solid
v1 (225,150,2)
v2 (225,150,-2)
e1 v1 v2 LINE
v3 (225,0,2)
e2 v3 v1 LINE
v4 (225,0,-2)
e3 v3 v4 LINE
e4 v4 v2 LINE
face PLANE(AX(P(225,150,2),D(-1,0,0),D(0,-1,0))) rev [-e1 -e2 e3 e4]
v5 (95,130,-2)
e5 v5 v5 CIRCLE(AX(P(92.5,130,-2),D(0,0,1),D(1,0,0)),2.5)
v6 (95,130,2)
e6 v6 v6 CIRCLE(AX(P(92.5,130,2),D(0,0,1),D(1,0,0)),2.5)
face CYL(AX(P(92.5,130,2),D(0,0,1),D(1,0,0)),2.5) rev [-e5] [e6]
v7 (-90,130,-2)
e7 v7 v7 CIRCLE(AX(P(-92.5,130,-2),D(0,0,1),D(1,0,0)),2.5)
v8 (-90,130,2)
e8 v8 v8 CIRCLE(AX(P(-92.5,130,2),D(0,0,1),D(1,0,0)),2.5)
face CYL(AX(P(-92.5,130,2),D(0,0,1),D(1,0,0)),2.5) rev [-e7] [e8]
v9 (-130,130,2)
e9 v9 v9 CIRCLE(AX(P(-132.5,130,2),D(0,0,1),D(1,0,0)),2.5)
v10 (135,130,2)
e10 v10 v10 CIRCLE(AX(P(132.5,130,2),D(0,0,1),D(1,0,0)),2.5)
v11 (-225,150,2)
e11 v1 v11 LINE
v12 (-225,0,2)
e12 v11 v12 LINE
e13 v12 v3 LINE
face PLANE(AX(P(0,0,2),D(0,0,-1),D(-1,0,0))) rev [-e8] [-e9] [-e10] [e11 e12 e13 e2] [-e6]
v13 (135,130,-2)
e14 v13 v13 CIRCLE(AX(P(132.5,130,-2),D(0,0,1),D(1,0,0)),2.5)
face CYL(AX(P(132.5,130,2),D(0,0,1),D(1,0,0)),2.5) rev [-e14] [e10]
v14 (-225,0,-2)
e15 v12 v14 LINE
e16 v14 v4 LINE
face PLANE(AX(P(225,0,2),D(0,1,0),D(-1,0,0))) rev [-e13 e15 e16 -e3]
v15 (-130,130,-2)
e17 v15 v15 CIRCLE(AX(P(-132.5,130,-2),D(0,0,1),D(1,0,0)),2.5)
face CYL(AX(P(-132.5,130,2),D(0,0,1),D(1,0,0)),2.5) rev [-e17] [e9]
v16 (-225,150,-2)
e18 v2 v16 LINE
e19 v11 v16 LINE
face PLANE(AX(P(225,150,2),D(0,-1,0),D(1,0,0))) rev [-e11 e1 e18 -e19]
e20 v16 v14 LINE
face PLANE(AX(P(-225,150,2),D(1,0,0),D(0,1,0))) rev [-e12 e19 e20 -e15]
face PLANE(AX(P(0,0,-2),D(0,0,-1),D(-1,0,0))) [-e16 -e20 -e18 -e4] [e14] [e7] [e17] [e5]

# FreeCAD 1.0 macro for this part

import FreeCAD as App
import Part
import Sketcher


def add_polygon(sketch, points):
    """Adds a closed chain of lines whose ends are joined by coincident constraints."""
    first, n = sketch.GeometryCount, len(points)
    for a, b in zip(points, points[1:] + points[:1]):
        sketch.addGeometry(Part.LineSegment(App.Vector(*a, 0), App.Vector(*b, 0)), False)
    for i in range(n):
        sketch.addConstraint(Sketcher.Constraint("Coincident", first + i, 2, first + (i + 1) % n, 1))

doc = App.newDocument("Part")
params = doc.addObject("Spreadsheet::Sheet", "Params")
for row, (alias, value) in enumerate([
    ("sketch1_width", "450 mm"),
    ("sketch1_height", "150 mm"),
    ("pad1_length", "4 mm"),
    ("sketch2_diameter", "5 mm"),
    ("hole_diameter", "5 mm"),
], start=1):
    params.set(f"A{row}", alias)
    params.set(f"B{row}", "=" + value)
    params.setAlias(f"B{row}", alias)

body = doc.addObject("PartDesign::Body", "Body")

# Sketch on XY plane
sketch1 = body.newObject("Sketcher::SketchObject", "Sketch")
sketch1.AttachmentSupport = (doc.getObject("XY_Plane"), [""])
sketch1.MapMode = "FlatFace"
add_polygon(sketch1, [(-225, 150), (-225, 0), (225, 0), (225, 150)])  # lines 0-3
sketch1.addConstraint([
    Sketcher.Constraint("Vertical", 0),
    Sketcher.Constraint("Horizontal", 1),
    Sketcher.Constraint("Vertical", 2),
    Sketcher.Constraint("Horizontal", 3),
    Sketcher.Constraint("Symmetric", 0, 2, 1, 2, -1, 1),
    Sketcher.Constraint("DistanceX", 1, 1, 1, 2, 450.0),
    Sketcher.Constraint("DistanceY", 0, 2, 0, 1, 150.0),
])
sketch1.setExpression("Constraints[9]", "Params.sketch1_width")
sketch1.setExpression("Constraints[10]", "Params.sketch1_height")
pad1 = body.newObject("PartDesign::Pad", "Pad")
pad1.Profile = sketch1
pad1.setExpression("Length", "Params.pad1_length")
pad1.Midplane = True

# Sketch on XY plane
sketch2 = body.newObject("Sketcher::SketchObject", "Sketch001")
sketch2.AttachmentSupport = (doc.getObject("XY_Plane"), [""])
sketch2.MapMode = "FlatFace"
sketch2.AttachmentOffset = App.Placement(App.Vector(0, 0, 2), App.Rotation())
sketch2.addGeometry([
    Part.Circle(App.Vector(132.5, 130, 0), App.Vector(0, 0, 1), 2.5),
    Part.Circle(App.Vector(-132.5, 130, 0), App.Vector(0, 0, 1), 2.5),
    Part.Circle(App.Vector(-92.5, 130, 0), App.Vector(0, 0, 1), 2.5),
    Part.Circle(App.Vector(92.5, 130, 0), App.Vector(0, 0, 1), 2.5),
], False)
sketch2.addConstraint([
    Sketcher.Constraint("Equal", 0, 1),
    Sketcher.Constraint("Equal", 1, 2),
    Sketcher.Constraint("Equal", 2, 3),
    Sketcher.Constraint("Symmetric", 0, 3, 1, 3, -2),
    Sketcher.Constraint("Symmetric", 2, 3, 3, 3, -2),
    Sketcher.Constraint("Horizontal", 1, 3, 2, 3),
    Sketcher.Constraint("Diameter", 0, 5.0),
    Sketcher.Constraint("DistanceY", -1, 1, 0, 3, 130.0),
    Sketcher.Constraint("DistanceX", 1, 3, 0, 3, 265.0),
    Sketcher.Constraint("DistanceX", 1, 3, 2, 3, 40.0),
])
sketch2.setExpression("Constraints[6]", "Params.sketch2_diameter")
doc.recompute()
hole = body.newObject("PartDesign::Hole", "Hole")
hole.Profile = sketch2
hole.ThreadType = "None"
hole.setExpression("Diameter", "Params.hole_diameter")
hole.DepthType = "ThroughAll"

doc.recompute()
